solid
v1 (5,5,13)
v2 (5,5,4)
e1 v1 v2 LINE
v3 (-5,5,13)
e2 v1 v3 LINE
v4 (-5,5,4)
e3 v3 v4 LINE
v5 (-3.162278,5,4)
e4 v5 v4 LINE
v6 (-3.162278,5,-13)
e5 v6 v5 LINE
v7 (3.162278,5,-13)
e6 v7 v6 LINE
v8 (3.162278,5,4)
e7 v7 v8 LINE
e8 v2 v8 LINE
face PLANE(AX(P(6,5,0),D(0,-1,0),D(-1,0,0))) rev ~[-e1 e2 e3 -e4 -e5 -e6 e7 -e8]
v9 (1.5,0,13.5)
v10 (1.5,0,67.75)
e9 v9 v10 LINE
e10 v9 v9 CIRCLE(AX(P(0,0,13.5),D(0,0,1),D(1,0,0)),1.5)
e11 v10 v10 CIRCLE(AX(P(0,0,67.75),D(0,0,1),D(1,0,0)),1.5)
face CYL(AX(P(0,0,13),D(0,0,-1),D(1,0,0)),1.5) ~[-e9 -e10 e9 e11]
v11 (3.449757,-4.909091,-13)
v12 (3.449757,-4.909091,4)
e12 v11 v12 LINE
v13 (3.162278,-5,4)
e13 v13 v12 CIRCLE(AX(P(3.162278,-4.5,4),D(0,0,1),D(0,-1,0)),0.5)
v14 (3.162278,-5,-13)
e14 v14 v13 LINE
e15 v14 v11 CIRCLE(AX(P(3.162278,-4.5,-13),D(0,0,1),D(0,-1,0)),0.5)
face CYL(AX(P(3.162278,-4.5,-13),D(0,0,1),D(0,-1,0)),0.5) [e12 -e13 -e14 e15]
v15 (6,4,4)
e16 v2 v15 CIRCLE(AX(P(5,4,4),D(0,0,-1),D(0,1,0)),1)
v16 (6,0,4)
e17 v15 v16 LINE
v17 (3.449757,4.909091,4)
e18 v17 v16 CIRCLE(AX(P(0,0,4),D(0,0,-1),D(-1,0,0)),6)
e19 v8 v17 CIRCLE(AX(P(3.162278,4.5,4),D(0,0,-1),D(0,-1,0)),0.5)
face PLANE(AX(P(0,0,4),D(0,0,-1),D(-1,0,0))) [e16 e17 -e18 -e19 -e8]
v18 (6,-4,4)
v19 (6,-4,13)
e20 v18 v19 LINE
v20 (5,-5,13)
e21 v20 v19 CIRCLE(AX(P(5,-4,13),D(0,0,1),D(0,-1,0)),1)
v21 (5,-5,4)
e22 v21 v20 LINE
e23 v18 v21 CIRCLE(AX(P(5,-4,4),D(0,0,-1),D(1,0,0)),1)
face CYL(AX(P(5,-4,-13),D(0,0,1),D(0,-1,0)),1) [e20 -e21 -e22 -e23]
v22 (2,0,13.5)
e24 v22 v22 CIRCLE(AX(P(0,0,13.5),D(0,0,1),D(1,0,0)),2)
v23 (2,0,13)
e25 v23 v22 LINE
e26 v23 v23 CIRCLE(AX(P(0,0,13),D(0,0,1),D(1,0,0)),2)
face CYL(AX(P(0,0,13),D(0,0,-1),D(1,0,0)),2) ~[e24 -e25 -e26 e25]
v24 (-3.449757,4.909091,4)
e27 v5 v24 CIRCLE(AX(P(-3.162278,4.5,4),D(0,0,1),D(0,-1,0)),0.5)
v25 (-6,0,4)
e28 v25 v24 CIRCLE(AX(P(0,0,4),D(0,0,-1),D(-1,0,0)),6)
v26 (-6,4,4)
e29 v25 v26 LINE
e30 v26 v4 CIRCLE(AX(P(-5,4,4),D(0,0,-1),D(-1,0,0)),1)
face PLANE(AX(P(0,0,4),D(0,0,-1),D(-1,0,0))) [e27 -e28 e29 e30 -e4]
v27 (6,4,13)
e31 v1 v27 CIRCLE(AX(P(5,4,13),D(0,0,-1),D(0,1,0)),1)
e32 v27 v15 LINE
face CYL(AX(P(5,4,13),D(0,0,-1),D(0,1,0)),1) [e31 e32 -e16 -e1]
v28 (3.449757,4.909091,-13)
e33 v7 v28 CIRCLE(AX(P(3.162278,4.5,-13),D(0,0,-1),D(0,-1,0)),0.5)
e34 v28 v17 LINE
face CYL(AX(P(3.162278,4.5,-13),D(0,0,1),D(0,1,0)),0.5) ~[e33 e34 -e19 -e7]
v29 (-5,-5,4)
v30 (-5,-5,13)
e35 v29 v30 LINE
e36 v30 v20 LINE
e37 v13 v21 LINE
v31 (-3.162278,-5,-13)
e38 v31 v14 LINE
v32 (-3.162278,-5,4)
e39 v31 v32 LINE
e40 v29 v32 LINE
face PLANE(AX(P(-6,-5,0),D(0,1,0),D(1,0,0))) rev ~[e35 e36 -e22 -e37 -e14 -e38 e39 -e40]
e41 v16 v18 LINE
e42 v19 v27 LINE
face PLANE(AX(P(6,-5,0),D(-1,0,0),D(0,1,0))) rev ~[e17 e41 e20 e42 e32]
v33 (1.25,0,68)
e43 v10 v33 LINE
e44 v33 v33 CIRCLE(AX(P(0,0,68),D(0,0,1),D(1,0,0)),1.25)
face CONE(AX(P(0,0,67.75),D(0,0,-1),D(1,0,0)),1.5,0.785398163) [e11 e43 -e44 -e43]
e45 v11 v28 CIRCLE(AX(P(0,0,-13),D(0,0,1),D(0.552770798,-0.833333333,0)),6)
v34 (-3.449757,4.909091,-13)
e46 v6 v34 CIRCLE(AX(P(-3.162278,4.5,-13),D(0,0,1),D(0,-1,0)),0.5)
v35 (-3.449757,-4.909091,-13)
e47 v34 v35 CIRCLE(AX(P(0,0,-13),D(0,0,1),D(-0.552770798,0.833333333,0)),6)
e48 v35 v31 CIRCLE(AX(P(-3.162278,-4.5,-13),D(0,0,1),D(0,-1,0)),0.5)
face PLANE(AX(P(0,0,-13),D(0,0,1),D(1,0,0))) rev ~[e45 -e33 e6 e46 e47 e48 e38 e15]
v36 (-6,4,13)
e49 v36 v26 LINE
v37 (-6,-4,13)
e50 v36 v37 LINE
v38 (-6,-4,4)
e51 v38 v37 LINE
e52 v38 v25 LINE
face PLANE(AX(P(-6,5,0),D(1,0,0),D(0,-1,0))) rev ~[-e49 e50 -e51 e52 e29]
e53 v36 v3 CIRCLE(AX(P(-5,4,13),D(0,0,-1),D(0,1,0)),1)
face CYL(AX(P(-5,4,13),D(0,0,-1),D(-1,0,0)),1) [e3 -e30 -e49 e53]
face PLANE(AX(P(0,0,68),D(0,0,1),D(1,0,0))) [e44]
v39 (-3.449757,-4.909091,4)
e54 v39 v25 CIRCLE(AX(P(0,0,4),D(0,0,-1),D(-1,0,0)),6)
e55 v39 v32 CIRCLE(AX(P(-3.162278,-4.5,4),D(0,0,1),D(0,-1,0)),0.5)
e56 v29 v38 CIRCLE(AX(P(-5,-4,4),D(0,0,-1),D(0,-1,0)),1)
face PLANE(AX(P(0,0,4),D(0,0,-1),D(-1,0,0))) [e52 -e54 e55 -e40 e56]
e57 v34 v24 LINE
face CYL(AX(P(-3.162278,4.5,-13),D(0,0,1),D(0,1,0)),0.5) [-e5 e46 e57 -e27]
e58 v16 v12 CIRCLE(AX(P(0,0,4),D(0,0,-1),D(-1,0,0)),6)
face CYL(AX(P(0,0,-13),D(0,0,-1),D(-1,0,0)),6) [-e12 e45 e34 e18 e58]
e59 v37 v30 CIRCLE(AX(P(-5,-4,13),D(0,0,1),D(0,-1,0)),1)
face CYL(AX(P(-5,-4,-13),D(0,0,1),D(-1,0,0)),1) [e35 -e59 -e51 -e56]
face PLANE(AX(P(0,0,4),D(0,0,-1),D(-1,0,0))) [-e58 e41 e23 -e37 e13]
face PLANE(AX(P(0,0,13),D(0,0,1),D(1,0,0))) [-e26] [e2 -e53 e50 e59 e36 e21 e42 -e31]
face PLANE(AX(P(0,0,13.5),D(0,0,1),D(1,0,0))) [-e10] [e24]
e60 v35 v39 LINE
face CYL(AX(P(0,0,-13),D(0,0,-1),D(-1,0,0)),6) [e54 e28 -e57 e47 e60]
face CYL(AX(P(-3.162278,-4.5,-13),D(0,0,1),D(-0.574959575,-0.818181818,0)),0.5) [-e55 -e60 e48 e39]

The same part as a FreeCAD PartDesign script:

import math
import FreeCAD as App
import Part
import Sketcher


def edges_at(feature, points):
    """Names of the edges that pass closest to the given points."""
    edges = feature.Shape.Edges
    near = lambda p: min(range(len(edges)), key=lambda i: edges[i].distToShape(Part.Vertex(*p))[0])
    return sorted({f"Edge{near(p) + 1}" for p in points})


def add_polygon(sketch, points):
    """Adds a closed chain of lines whose ends are joined by coincident constraints."""
    first, n = sketch.GeometryCount, len(points)
    for a, b in zip(points, points[1:] + points[:1]):
        sketch.addGeometry(Part.LineSegment(App.Vector(*a, 0), App.Vector(*b, 0)), False)
    for i in range(n):
        sketch.addConstraint(Sketcher.Constraint("Coincident", first + i, 2, first + (i + 1) % n, 1))

doc = App.newDocument("Part")
body = doc.addObject("PartDesign::Body", "Body")

# Sketch on XY plane
sketch1 = body.newObject("Sketcher::SketchObject", "Sketch")
sketch1.AttachmentSupport = (doc.getObject("XY_Plane"), [""])
sketch1.MapMode = "FlatFace"
add_polygon(sketch1, [(-6, 5), (-6, -5), (6, -5), (6, 5)])  # lines 0-3
sketch1.addConstraint(Sketcher.Constraint("Vertical", 0))
sketch1.addConstraint(Sketcher.Constraint("Horizontal", 1))
sketch1.addConstraint(Sketcher.Constraint("Vertical", 2))
sketch1.addConstraint(Sketcher.Constraint("Horizontal", 3))
sketch1.addConstraint(Sketcher.Constraint("Symmetric", 0, 2, 2, 2, -1, 1))
sketch1.addConstraint(Sketcher.Constraint("DistanceX", 1, 1, 1, 2, 12.0))
sketch1.addConstraint(Sketcher.Constraint("DistanceY", 0, 2, 0, 1, 10.0))
pad1 = body.newObject("PartDesign::Pad", "Pad")
pad1.Profile = sketch1
pad1.Length = 26
pad1.Midplane = True

# Sketch on XY plane
sketch2 = body.newObject("Sketcher::SketchObject", "Sketch001")
sketch2.AttachmentSupport = (doc.getObject("XY_Plane"), [""])
sketch2.MapMode = "FlatFace"
sketch2.AttachmentOffset = App.Placement(App.Vector(0, 0, 13), App.Rotation())
sketch2.addGeometry(Part.Circle(App.Vector(0, 0, 0), App.Vector(0, 0, 1), 1.5), False)
sketch2.addConstraint(Sketcher.Constraint("Coincident", 0, 3, -1, 1))
sketch2.addConstraint(Sketcher.Constraint("Diameter", 0, 3.0))
pad2 = body.newObject("PartDesign::Pad", "Pad001")
pad2.Profile = sketch2
pad2.Length = 55
doc.recompute()

fillet = body.newObject("PartDesign::Fillet", "Fillet")
fillet.Base = (pad2, edges_at(pad2, [
    (6, 5, 0),
    (-6, 5, 0),
    (6, -5, 0),
    (-6, -5, 0),
]))
fillet.Radius = 1

# Sketch on XY plane
sketch3 = body.newObject("Sketcher::SketchObject", "Sketch002")
sketch3.AttachmentSupport = (doc.getObject("XY_Plane"), [""])
sketch3.MapMode = "FlatFace"
sketch3.AttachmentOffset = App.Placement(App.Vector(0, 0, -13), App.Rotation())
sketch3.addGeometry(Part.LineSegment(App.Vector(-3.3, -5, 0), App.Vector(-5, -5, 0)), False)
sketch3.addGeometry(Part.ArcOfCircle(Part.Circle(App.Vector(-5, -4, 0), App.Vector(0, 0, 1), 1), math.radians(180), math.radians(270)), False)
sketch3.addGeometry(Part.LineSegment(App.Vector(-6, -4, 0), App.Vector(-6, 0, 0)), False)
sketch3.addGeometry(Part.ArcOfCircle(Part.Circle(App.Vector(0, 0, 0), App.Vector(0, 0, 1), 6), math.radians(180), math.radians(236)), False)
sketch3.addGeometry(Part.ArcOfCircle(Part.Circle(App.Vector(0, 0, 0), App.Vector(0, 0, 1), 6), math.radians(124), math.radians(180)), False)
sketch3.addGeometry(Part.LineSegment(App.Vector(-6, 0, 0), App.Vector(-6, 4, 0)), False)
sketch3.addGeometry(Part.ArcOfCircle(Part.Circle(App.Vector(-5, 4, 0), App.Vector(0, 0, 1), 1), math.radians(90), math.radians(180)), False)
sketch3.addGeometry(Part.LineSegment(App.Vector(-5, 5, 0), App.Vector(-3.3, 5, 0)), False)
sketch3.addGeometry(Part.LineSegment(App.Vector(5, -5, 0), App.Vector(3.3, -5, 0)), False)
sketch3.addGeometry(Part.ArcOfCircle(Part.Circle(App.Vector(0, 0, 0), App.Vector(0, 0, 1), 6), math.radians(-56), math.radians(0)), False)
sketch3.addGeometry(Part.LineSegment(App.Vector(6, 0, 0), App.Vector(6, -4, 0)), False)
sketch3.addGeometry(Part.ArcOfCircle(Part.Circle(App.Vector(5, -4, 0), App.Vector(0, 0, 1), 1), math.radians(-90), math.radians(0)), False)
sketch3.addGeometry(Part.LineSegment(App.Vector(6, 4, 0), App.Vector(6, 0, 0)), False)
sketch3.addGeometry(Part.ArcOfCircle(Part.Circle(App.Vector(0, 0, 0), App.Vector(0, 0, 1), 6), math.radians(0), math.radians(56)), False)
sketch3.addGeometry(Part.LineSegment(App.Vector(3.3, 5, 0), App.Vector(5, 5, 0)), False)
sketch3.addGeometry(Part.ArcOfCircle(Part.Circle(App.Vector(5, 4, 0), App.Vector(0, 0, 1), 1), math.radians(0), math.radians(90)), False)
sketch3.addConstraint(Sketcher.Constraint("Tangent", 0, 2, 1, 2))
sketch3.addConstraint(Sketcher.Constraint("Tangent", 1, 1, 2, 1))
sketch3.addConstraint(Sketcher.Constraint("Tangent", 2, 2, 3, 1))
sketch3.addConstraint(Sketcher.Constraint("Coincident", 3, 2, 0, 1))
sketch3.addConstraint(Sketcher.Constraint("Tangent", 4, 2, 5, 1))
sketch3.addConstraint(Sketcher.Constraint("Tangent", 5, 2, 6, 2))
sketch3.addConstraint(Sketcher.Constraint("Tangent", 6, 1, 7, 1))
sketch3.addConstraint(Sketcher.Constraint("Coincident", 7, 2, 4, 1))
sketch3.addConstraint(Sketcher.Constraint("Coincident", 8, 2, 9, 1))
sketch3.addConstraint(Sketcher.Constraint("Tangent", 9, 2, 10, 1))
sketch3.addConstraint(Sketcher.Constraint("Tangent", 10, 2, 11, 2))
sketch3.addConstraint(Sketcher.Constraint("Tangent", 11, 1, 8, 1))
sketch3.addConstraint(Sketcher.Constraint("Tangent", 12, 2, 13, 1))
sketch3.addConstraint(Sketcher.Constraint("Coincident", 13, 2, 14, 1))
sketch3.addConstraint(Sketcher.Constraint("Tangent", 14, 2, 15, 2))
sketch3.addConstraint(Sketcher.Constraint("Tangent", 15, 1, 12, 1))
sketch3.addConstraint(Sketcher.Constraint("Horizontal", 0))
sketch3.addConstraint(Sketcher.Constraint("Vertical", 2))
sketch3.addConstraint(Sketcher.Constraint("Vertical", 5))
sketch3.addConstraint(Sketcher.Constraint("Horizontal", 7))
sketch3.addConstraint(Sketcher.Constraint("Horizontal", 8))
sketch3.addConstraint(Sketcher.Constraint("Vertical", 10))
sketch3.addConstraint(Sketcher.Constraint("Vertical", 12))
sketch3.addConstraint(Sketcher.Constraint("Horizontal", 14))
sketch3.addConstraint(Sketcher.Constraint("Coincident", 3, 3, -1, 1))
sketch3.addConstraint(Sketcher.Constraint("Coincident", 4, 3, -1, 1))
sketch3.addConstraint(Sketcher.Constraint("Coincident", 9, 3, -1, 1))
sketch3.addConstraint(Sketcher.Constraint("Coincident", 13, 3, -1, 1))
sketch3.addConstraint(Sketcher.Constraint("Equal", 3, 4))
sketch3.addConstraint(Sketcher.Constraint("Equal", 1, 6))
sketch3.addConstraint(Sketcher.Constraint("Equal", 4, 9))
sketch3.addConstraint(Sketcher.Constraint("Equal", 6, 11))
sketch3.addConstraint(Sketcher.Constraint("Equal", 9, 13))
sketch3.addConstraint(Sketcher.Constraint("Equal", 11, 15))
sketch3.addConstraint(Sketcher.Constraint("Horizontal", 1, 3, 11, 3))
sketch3.addConstraint(Sketcher.Constraint("Horizontal", 6, 3, 15, 3))
sketch3.addConstraint(Sketcher.Constraint("Vertical", 3, 2, 7, 2))
sketch3.addConstraint(Sketcher.Constraint("Radius", 3, 6.0))
sketch3.addConstraint(Sketcher.Constraint("Radius", 1, 1.0))
sketch3.addConstraint(Sketcher.Constraint("DistanceY", 2, 1, 2, 2, 4.0))
pocket1 = body.newObject("PartDesign::Pocket", "Pocket")
pocket1.Profile = sketch3
pocket1.Length = 17
pocket1.Reversed = True
doc.recompute()

fillet2 = body.newObject("PartDesign::Fillet", "Fillet001")
fillet2.Base = (pocket1, edges_at(pocket1, [
    (-3.317, -5, -4.5),
    (3.317, -5, -4.5),
    (-3.317, 5, -4.5),
    (3.317, 5, -4.5),
]))
fillet2.Radius = 0.5

# Sketch on XY plane
sketch4 = body.newObject("Sketcher::SketchObject", "Sketch003")
sketch4.AttachmentSupport = (doc.getObject("XY_Plane"), [""])
sketch4.MapMode = "FlatFace"
sketch4.AttachmentOffset = App.Placement(App.Vector(0, 0, 13), App.Rotation())
sketch4.addGeometry(Part.Circle(App.Vector(0, 0, 0), App.Vector(0, 0, 1), 2), False)
sketch4.addGeometry(Part.Circle(App.Vector(0, 0, 0), App.Vector(0, 0, 1), 1.5), False)
sketch4.addConstraint(Sketcher.Constraint("Coincident", 0, 3, -1, 1))
sketch4.addConstraint(Sketcher.Constraint("Coincident", 1, 3, -1, 1))
sketch4.addConstraint(Sketcher.Constraint("Diameter", 0, 4.0))
sketch4.addConstraint(Sketcher.Constraint("Diameter", 1, 3.0))
pad3 = body.newObject("PartDesign::Pad", "Pad002")
pad3.Profile = sketch4
pad3.Length = 0.5
doc.recompute()

chamfer = body.newObject("PartDesign::Chamfer", "Chamfer")
chamfer.Base = (pad3, edges_at(pad3, [(-1.5, 0, 68)]))
chamfer.Size = 0.25

doc.recompute()
